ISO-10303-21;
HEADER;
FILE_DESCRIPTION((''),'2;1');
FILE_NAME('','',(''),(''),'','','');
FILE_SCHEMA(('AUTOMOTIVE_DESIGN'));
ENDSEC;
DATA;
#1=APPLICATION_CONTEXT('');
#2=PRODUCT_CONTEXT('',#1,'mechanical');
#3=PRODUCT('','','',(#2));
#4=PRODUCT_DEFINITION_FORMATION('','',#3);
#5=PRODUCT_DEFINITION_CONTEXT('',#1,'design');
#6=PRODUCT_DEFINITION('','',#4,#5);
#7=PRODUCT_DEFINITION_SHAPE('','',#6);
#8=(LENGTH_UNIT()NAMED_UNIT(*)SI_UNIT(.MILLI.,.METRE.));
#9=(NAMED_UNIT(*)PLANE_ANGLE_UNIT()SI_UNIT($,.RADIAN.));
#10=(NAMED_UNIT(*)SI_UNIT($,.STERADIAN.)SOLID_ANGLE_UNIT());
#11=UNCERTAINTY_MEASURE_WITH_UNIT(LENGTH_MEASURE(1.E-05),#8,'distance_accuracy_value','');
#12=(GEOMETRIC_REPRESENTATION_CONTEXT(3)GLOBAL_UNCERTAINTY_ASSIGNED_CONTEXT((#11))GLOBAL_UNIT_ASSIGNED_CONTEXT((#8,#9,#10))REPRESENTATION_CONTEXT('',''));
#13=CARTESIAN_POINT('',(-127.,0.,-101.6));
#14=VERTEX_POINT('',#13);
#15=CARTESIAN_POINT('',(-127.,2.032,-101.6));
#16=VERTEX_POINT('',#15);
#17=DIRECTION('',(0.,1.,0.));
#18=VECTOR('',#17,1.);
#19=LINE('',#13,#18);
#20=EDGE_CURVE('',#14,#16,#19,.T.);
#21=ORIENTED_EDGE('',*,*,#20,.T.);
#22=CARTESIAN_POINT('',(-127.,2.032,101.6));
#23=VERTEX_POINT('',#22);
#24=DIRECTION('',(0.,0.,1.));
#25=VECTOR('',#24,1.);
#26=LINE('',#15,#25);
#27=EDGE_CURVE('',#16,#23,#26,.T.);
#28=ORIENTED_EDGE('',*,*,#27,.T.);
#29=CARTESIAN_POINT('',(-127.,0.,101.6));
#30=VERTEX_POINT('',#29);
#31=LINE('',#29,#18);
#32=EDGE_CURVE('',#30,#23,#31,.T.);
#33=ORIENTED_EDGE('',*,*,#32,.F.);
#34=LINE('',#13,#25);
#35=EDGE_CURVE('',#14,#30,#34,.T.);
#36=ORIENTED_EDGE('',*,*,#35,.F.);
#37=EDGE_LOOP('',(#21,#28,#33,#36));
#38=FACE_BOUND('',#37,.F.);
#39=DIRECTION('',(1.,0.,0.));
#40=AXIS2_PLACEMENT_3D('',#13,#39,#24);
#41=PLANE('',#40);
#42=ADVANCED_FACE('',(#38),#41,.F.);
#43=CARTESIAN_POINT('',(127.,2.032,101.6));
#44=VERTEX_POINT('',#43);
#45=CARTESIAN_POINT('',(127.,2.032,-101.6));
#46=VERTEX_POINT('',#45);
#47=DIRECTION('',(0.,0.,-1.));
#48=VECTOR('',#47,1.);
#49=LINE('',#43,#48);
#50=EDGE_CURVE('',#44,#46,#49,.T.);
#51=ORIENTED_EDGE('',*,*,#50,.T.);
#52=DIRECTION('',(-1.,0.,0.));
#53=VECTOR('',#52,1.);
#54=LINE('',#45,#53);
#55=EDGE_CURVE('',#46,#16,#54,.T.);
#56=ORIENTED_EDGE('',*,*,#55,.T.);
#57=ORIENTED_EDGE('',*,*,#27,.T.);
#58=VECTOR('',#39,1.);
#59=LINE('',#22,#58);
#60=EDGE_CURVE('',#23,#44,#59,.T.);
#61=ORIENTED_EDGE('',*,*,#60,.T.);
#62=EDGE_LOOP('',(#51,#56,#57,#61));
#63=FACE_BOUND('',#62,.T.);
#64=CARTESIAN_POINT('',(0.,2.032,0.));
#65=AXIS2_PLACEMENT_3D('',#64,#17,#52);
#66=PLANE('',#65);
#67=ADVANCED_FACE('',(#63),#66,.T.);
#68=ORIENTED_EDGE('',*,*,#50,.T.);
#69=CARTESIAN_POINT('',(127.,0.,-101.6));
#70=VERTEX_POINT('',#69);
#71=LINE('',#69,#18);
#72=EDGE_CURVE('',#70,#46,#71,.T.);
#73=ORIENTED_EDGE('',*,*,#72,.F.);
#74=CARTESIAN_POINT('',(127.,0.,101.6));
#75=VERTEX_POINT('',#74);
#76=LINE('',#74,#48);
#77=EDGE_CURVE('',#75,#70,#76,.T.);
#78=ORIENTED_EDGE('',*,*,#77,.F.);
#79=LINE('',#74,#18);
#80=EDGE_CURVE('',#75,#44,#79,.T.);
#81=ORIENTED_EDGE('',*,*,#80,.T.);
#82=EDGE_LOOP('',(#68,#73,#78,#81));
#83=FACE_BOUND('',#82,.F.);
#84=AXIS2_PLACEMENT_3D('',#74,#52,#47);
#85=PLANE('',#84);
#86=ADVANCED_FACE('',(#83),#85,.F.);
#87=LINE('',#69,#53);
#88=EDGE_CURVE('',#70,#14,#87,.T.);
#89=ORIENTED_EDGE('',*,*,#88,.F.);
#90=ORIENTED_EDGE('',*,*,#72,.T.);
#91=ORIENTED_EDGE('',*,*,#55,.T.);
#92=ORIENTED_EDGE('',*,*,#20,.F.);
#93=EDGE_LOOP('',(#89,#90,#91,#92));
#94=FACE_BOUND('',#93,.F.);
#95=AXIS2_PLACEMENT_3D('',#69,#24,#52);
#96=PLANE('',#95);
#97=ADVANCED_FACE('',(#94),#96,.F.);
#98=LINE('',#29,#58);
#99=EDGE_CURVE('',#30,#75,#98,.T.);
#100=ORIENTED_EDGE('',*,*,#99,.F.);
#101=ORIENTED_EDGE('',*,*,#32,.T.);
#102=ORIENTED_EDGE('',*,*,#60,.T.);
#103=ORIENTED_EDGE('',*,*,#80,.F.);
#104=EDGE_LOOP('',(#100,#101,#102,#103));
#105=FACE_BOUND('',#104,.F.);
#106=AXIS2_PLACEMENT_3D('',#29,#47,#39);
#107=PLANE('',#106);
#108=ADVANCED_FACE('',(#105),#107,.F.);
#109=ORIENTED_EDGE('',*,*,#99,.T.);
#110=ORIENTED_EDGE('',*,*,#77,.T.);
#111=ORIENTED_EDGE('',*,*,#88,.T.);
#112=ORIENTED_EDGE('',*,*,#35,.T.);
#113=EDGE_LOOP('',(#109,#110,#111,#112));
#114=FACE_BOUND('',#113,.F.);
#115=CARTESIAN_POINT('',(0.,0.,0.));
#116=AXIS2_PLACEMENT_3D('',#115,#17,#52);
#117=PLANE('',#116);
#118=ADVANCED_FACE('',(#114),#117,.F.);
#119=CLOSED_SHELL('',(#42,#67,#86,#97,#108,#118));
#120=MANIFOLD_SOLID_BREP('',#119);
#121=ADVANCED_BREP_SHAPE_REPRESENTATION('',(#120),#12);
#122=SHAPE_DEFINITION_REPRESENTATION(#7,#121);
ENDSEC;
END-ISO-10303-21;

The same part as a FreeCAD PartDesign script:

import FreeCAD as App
import Part
import Sketcher
Q = App.Units.Quantity

doc = App.newDocument("Part")
body = doc.addObject("PartDesign::Body", "Body")

# Sketch on XZ plane
sketch1 = body.newObject("Sketcher::SketchObject", "Sketch")
sketch1.AttachmentSupport = (doc.getObject("XZ_Plane"), [""])
sketch1.MapMode = "FlatFace"
sketch1.addGeometry(Part.LineSegment(App.Vector(-127, 102, 0), App.Vector(127, 102, 0)), False)
sketch1.addGeometry(Part.LineSegment(App.Vector(127, 102, 0), App.Vector(127, -102, 0)), False)
sketch1.addGeometry(Part.LineSegment(App.Vector(127, -102, 0), App.Vector(-127, -102, 0)), False)
sketch1.addGeometry(Part.LineSegment(App.Vector(-127, -102, 0), App.Vector(-127, 102, 0)), False)
sketch1.addConstraint(Sketcher.Constraint("Coincident", 0, 2, 1, 1))
sketch1.addConstraint(Sketcher.Constraint("Coincident", 1, 2, 2, 1))
sketch1.addConstraint(Sketcher.Constraint("Coincident", 2, 2, 3, 1))
sketch1.addConstraint(Sketcher.Constraint("Coincident", 3, 2, 0, 1))
sketch1.addConstraint(Sketcher.Constraint("Horizontal", 0))
sketch1.addConstraint(Sketcher.Constraint("Vertical", 1))
sketch1.addConstraint(Sketcher.Constraint("Horizontal", 2))
sketch1.addConstraint(Sketcher.Constraint("Vertical", 3))
sketch1.addConstraint(Sketcher.Constraint("Symmetric", 0, 2, 2, 2, -1, 1))
sketch1.addConstraint(Sketcher.Constraint("DistanceX", 0, 1, 0, 2, Q("10 in")))
sketch1.addConstraint(Sketcher.Constraint("DistanceY", 1, 2, 1, 1, Q("8 in")))
pad1 = body.newObject("PartDesign::Pad", "Pad")
pad1.Profile = sketch1
pad1.Length = Q("0.08 in")
pad1.Reversed = True

doc.recompute()
